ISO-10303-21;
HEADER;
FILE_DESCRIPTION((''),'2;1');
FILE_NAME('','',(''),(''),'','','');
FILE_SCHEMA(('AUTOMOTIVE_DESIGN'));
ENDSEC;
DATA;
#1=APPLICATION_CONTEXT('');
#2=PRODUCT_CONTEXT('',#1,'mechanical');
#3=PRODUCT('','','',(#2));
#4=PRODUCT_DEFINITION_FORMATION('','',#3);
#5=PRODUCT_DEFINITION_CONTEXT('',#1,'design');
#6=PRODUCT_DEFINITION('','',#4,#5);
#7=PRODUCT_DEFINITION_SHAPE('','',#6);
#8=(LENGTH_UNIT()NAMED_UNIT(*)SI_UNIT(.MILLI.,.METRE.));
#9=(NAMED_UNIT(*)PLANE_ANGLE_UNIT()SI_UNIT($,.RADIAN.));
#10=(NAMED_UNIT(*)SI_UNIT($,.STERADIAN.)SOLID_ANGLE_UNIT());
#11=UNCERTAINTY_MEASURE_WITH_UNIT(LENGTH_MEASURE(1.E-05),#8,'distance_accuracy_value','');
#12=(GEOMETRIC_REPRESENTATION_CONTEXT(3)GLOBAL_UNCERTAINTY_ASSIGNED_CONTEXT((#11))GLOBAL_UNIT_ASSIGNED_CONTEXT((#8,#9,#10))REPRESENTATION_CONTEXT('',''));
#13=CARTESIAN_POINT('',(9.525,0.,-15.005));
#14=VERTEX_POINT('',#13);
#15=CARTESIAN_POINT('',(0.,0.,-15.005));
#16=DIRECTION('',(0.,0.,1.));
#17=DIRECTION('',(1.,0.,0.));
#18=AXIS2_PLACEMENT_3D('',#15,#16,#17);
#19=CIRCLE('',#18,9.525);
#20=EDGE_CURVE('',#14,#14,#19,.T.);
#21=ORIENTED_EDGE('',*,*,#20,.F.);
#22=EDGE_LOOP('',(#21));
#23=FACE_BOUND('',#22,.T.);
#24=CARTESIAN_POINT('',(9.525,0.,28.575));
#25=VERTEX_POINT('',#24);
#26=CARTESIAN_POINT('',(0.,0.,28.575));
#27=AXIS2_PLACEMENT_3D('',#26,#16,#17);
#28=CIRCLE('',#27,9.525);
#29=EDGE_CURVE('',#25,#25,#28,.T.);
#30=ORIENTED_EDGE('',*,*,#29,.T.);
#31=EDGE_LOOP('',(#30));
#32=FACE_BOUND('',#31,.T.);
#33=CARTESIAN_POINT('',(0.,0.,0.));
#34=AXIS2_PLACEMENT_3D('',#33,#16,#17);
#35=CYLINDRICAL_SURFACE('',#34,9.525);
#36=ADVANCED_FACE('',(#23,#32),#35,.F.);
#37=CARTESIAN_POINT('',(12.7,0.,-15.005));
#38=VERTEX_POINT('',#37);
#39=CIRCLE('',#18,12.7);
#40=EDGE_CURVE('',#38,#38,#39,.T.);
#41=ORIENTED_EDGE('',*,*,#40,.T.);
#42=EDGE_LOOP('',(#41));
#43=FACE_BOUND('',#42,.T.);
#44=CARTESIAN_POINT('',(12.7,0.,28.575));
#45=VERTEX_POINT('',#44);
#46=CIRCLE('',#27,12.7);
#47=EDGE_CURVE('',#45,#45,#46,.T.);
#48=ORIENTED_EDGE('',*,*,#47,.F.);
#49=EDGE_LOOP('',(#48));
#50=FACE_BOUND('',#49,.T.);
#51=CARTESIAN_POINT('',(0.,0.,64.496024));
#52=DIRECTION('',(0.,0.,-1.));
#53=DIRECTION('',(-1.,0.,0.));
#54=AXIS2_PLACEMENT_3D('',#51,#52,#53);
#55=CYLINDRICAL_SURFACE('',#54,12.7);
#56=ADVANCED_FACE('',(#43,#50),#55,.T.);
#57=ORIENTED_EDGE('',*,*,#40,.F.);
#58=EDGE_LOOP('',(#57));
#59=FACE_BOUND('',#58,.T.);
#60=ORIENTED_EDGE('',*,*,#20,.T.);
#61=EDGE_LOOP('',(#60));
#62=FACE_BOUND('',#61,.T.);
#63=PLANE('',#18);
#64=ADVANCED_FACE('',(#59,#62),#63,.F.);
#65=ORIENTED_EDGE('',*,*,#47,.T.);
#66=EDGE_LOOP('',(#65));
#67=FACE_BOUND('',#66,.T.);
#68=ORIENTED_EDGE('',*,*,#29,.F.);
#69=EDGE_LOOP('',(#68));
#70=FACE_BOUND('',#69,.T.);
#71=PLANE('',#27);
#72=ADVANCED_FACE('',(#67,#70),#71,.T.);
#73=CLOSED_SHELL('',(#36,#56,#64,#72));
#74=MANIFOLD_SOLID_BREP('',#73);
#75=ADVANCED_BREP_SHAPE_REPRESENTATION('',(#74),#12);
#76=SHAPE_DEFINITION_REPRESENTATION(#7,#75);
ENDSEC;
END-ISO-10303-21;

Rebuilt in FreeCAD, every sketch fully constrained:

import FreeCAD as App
import Part
import Sketcher

V = App.Vector
Q = App.Units.Quantity

doc = App.newDocument("Part")
body = doc.addObject("PartDesign::Body", "Body")

# Sketch on XY plane
sketch1 = doc.addObject("Sketcher::SketchObject", "Sketch")
body.addObject(sketch1)
sketch1.AttachmentSupport = (doc.XY_Plane, [""])
sketch1.MapMode = "FlatFace"
sketch1.addGeometry(Part.Circle(V(0, 0, 0), V(0, 0, 1), 12.7), False)
sketch1.addConstraint(Sketcher.Constraint("Coincident", 0, 3, -1, 1))
sketch1.addConstraint(Sketcher.Constraint("Diameter", 0, Q("1 in")))
pad1 = doc.addObject("PartDesign::Pad", "Pad")
body.addObject(pad1)
pad1.Profile = sketch1
pad1.Length = Q("1.125 in")

# Sketch on XY plane
sketch2 = doc.addObject("Sketcher::SketchObject", "Sketch001")
body.addObject(sketch2)
sketch2.AttachmentSupport = (doc.XY_Plane, [""])
sketch2.MapMode = "FlatFace"
sketch2.AttachmentOffset = App.Placement(V(0, 0, 1.125 * 25.4), App.Rotation())
sketch2.addGeometry(Part.Circle(V(0, 0, 0), V(0, 0, 1), 9.525), False)
sketch2.addConstraint(Sketcher.Constraint("Coincident", 0, 3, -1, 1))
sketch2.addConstraint(Sketcher.Constraint("Diameter", 0, Q("0.75 in")))
pocket1 = doc.addObject("PartDesign::Pocket", "Pocket")
body.addObject(pocket1)
pocket1.Profile = sketch2
pocket1.Type = "ThroughAll"

# Sketch on XY plane
sketch3 = doc.addObject("Sketcher::SketchObject", "Sketch002")
body.addObject(sketch3)
sketch3.AttachmentSupport = (doc.XY_Plane, [""])
sketch3.MapMode = "FlatFace"
sketch3.AttachmentOffset = App.Placement(V(0, 0, 1.125 * 25.4), App.Rotation())
sketch3.addGeometry(Part.Circle(V(0, 0, 0), V(0, 0, 1), 12.7), False)
sketch3.addGeometry(Part.Circle(V(0, 0, 0), V(0, 0, 1), 9.525), False)
sketch3.addConstraint(Sketcher.Constraint("Coincident", 0, 3, -1, 1))
sketch3.addConstraint(Sketcher.Constraint("Coincident", 1, 3, -1, 1))
sketch3.addConstraint(Sketcher.Constraint("Diameter", 0, Q("1 in")))
sketch3.addConstraint(Sketcher.Constraint("Diameter", 1, Q("0.75 in")))
pad2 = doc.addObject("PartDesign::Pad", "Pad001")
body.addObject(pad2)
pad2.Profile = sketch3
pad2.Length = 43.58
pad2.Reversed = True

doc.recompute()
